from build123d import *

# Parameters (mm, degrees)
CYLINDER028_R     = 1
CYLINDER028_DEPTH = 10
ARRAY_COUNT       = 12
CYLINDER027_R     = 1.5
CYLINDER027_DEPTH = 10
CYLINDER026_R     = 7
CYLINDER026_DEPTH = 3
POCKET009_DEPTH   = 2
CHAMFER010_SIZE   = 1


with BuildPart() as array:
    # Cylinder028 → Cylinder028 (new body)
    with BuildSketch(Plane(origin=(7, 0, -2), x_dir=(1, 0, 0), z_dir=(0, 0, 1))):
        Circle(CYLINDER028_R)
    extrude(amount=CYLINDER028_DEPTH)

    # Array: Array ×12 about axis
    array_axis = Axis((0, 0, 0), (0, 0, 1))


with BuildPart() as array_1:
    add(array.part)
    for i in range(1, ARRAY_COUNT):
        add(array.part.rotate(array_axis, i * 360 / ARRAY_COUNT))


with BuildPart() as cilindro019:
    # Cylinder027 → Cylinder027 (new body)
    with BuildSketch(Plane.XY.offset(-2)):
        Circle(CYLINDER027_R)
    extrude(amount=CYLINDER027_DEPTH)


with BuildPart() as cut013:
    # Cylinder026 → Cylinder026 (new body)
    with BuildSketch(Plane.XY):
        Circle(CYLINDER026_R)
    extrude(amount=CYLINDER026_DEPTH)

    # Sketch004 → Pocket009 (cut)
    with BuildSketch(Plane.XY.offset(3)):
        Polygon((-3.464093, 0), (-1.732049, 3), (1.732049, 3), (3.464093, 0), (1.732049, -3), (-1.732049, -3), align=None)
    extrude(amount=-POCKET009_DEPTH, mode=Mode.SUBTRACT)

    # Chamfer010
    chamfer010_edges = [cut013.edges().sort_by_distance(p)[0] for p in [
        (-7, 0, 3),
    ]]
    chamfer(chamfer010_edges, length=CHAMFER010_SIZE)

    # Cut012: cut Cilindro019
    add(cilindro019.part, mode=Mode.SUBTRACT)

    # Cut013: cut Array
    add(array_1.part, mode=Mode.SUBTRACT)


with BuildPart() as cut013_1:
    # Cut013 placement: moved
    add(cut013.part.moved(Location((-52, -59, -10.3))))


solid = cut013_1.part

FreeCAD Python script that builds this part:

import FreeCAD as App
import Part
import Sketcher
Q = App.Units.Quantity


def edges_at(feature, points):
    """Names of the edges that pass closest to the given points."""
    edges = feature.Shape.Edges
    near = lambda p: min(range(len(edges)), key=lambda i: edges[i].distToShape(Part.Vertex(*p))[0])
    return sorted({f"Edge{near(p) + 1}" for p in points})


def add_polygon(sketch, points):
    """Adds a closed chain of lines whose ends are joined by coincident constraints."""
    first, n = sketch.GeometryCount, len(points)
    for a, b in zip(points, points[1:] + points[:1]):
        sketch.addGeometry(Part.LineSegment(App.Vector(*a, 0), App.Vector(*b, 0)), False)
    for i in range(n):
        sketch.addConstraint(Sketcher.Constraint("Coincident", first + i, 2, first + (i + 1) % n, 1))

doc = App.newDocument("Part")
body = doc.addObject("PartDesign::Body", "Body")

# Sketch on XY plane
sketch1 = body.newObject("Sketcher::SketchObject", "Sketch")
sketch1.AttachmentSupport = (doc.getObject("XY_Plane"), [""])
sketch1.MapMode = "FlatFace"
sketch1.AttachmentOffset = App.Placement(App.Vector(0, 0, -2), App.Rotation())
sketch1.addGeometry(Part.Circle(App.Vector(7, 0, 0), App.Vector(0, 0, 1), 1), False)
sketch1.addConstraint([
    Sketcher.Constraint("PointOnObject", 0, 3, -1),
    Sketcher.Constraint("Diameter", 0, Q("2 mm")),
    Sketcher.Constraint("DistanceX", -1, 1, 0, 3, Q("7 mm")),
])
pad1 = body.newObject("PartDesign::Pad", "Pad")
pad1.Profile = sketch1
pad1.Length = 10
body2 = doc.addObject("PartDesign::Body", "Body001")
body2.AllowCompound = True
doc.recompute()

body2.BaseFeature = body
doc.recompute()

body3 = doc.addObject("PartDesign::Body", "Body002")
body3.BaseFeature = body
body3.Placement = App.Placement(App.Vector(0, 0, 0), App.Rotation(App.Vector(0, 0, 1), 30))
boolean = body2.newObject("PartDesign::Boolean", "Boolean")
boolean.Type = "Fuse"
boolean.addObjects([body3])
doc.recompute()

body4 = doc.addObject("PartDesign::Body", "Body003")
body4.BaseFeature = body
body4.Placement = App.Placement(App.Vector(0, 0, 0), App.Rotation(App.Vector(0, 0, 1), 60))
boolean2 = body2.newObject("PartDesign::Boolean", "Boolean001")
boolean2.Type = "Fuse"
boolean2.addObjects([body4])
doc.recompute()

body5 = doc.addObject("PartDesign::Body", "Body004")
body5.BaseFeature = body
body5.Placement = App.Placement(App.Vector(0, 0, 0), App.Rotation(App.Vector(0, 0, 1), 90))
boolean3 = body2.newObject("PartDesign::Boolean", "Boolean002")
boolean3.Type = "Fuse"
boolean3.addObjects([body5])
doc.recompute()

body6 = doc.addObject("PartDesign::Body", "Body005")
body6.BaseFeature = body
body6.Placement = App.Placement(App.Vector(0, 0, 0), App.Rotation(App.Vector(0, 0, 1), 120))
boolean4 = body2.newObject("PartDesign::Boolean", "Boolean003")
boolean4.Type = "Fuse"
boolean4.addObjects([body6])
doc.recompute()

body7 = doc.addObject("PartDesign::Body", "Body006")
body7.BaseFeature = body
body7.Placement = App.Placement(App.Vector(0, 0, 0), App.Rotation(App.Vector(0, 0, 1), 150))
boolean5 = body2.newObject("PartDesign::Boolean", "Boolean004")
boolean5.Type = "Fuse"
boolean5.addObjects([body7])
doc.recompute()

body8 = doc.addObject("PartDesign::Body", "Body007")
body8.BaseFeature = body
body8.Placement = App.Placement(App.Vector(0, 0, 0), App.Rotation(App.Vector(0, 0, 1), 180))
boolean6 = body2.newObject("PartDesign::Boolean", "Boolean005")
boolean6.Type = "Fuse"
boolean6.addObjects([body8])
doc.recompute()

body9 = doc.addObject("PartDesign::Body", "Body008")
body9.BaseFeature = body
body9.Placement = App.Placement(App.Vector(0, 0, 0), App.Rotation(App.Vector(0, 0, 1), 210))
boolean7 = body2.newObject("PartDesign::Boolean", "Boolean006")
boolean7.Type = "Fuse"
boolean7.addObjects([body9])
doc.recompute()

body10 = doc.addObject("PartDesign::Body", "Body009")
body10.BaseFeature = body
body10.Placement = App.Placement(App.Vector(0, 0, 0), App.Rotation(App.Vector(0, 0, 1), 240))
boolean8 = body2.newObject("PartDesign::Boolean", "Boolean007")
boolean8.Type = "Fuse"
boolean8.addObjects([body10])
doc.recompute()

body11 = doc.addObject("PartDesign::Body", "Body010")
body11.BaseFeature = body
body11.Placement = App.Placement(App.Vector(0, 0, 0), App.Rotation(App.Vector(0, 0, 1), 270))
boolean9 = body2.newObject("PartDesign::Boolean", "Boolean008")
boolean9.Type = "Fuse"
boolean9.addObjects([body11])
doc.recompute()

body12 = doc.addObject("PartDesign::Body", "Body011")
body12.BaseFeature = body
body12.Placement = App.Placement(App.Vector(0, 0, 0), App.Rotation(App.Vector(0, 0, 1), 300))
boolean10 = body2.newObject("PartDesign::Boolean", "Boolean009")
boolean10.Type = "Fuse"
boolean10.addObjects([body12])
doc.recompute()

body.Placement = App.Placement(App.Vector(0, 0, 0), App.Rotation(App.Vector(0, 0, 1), 330))
boolean11 = body2.newObject("PartDesign::Boolean", "Boolean010")
boolean11.Type = "Fuse"
boolean11.addObjects([body])
body13 = doc.addObject("PartDesign::Body", "Body012")

# Sketch on XY plane
sketch2 = body13.newObject("Sketcher::SketchObject", "Sketch001")
sketch2.AttachmentSupport = (doc.getObject("XY_Plane012"), [""])
sketch2.MapMode = "FlatFace"
sketch2.AttachmentOffset = App.Placement(App.Vector(0, 0, -2), App.Rotation())
sketch2.addGeometry(Part.Circle(App.Vector(0, 0, 0), App.Vector(0, 0, 1), 1.5), False)
sketch2.addConstraint([
    Sketcher.Constraint("Coincident", 0, 3, -1, 1),
    Sketcher.Constraint("Diameter", 0, Q("3 mm")),
])
pad2 = body13.newObject("PartDesign::Pad", "Pad001")
pad2.Profile = sketch2
pad2.Length = 10
body14 = doc.addObject("PartDesign::Body", "Body013")

# Sketch on XY plane
sketch3 = body14.newObject("Sketcher::SketchObject", "Sketch002")
sketch3.AttachmentSupport = (doc.getObject("XY_Plane013"), [""])
sketch3.MapMode = "FlatFace"
sketch3.addGeometry(Part.Circle(App.Vector(0, 0, 0), App.Vector(0, 0, 1), 7), False)
sketch3.addConstraint([
    Sketcher.Constraint("Coincident", 0, 3, -1, 1),
    Sketcher.Constraint("Diameter", 0, Q("14 mm")),
])
pad3 = body14.newObject("PartDesign::Pad", "Pad002")
pad3.Profile = sketch3
pad3.Length = 3

# Sketch on XY plane
sketch4 = body14.newObject("Sketcher::SketchObject", "Sketch003")
sketch4.AttachmentSupport = (doc.getObject("XY_Plane013"), [""])
sketch4.MapMode = "FlatFace"
sketch4.AttachmentOffset = App.Placement(App.Vector(0, 0, 3), App.Rotation())
add_polygon(sketch4, [(-1.732049, 3), (-3.464093, 0), (-1.732049, -3), (1.732049, -3), (3.464093, 0), (1.732049, 3)])  # lines 0-5
sketch4.addConstraint([
    Sketcher.Constraint("Horizontal", 2),
    Sketcher.Constraint("Horizontal", 5),
    Sketcher.Constraint("Symmetric", 0, 2, 3, 2, -1, 1),
    Sketcher.Constraint("Symmetric", 1, 2, 4, 2, -1, 1),
    Sketcher.Constraint("PointOnObject", 0, 2, -1),
    Sketcher.Constraint("Parallel", 0, 3),
    Sketcher.Constraint("Vertical", 2, 2, 4, 2),
    Sketcher.Constraint("DistanceY", 1, 2, -1, 1, Q("3 mm")),
    Sketcher.Constraint("Distance", 0, Q("3.464098 mm")),
    Sketcher.Constraint("DistanceX", 2, 1, 2, 2, Q("3.464098 mm")),
])
pocket1 = body14.newObject("PartDesign::Pocket", "Pocket")
pocket1.Profile = sketch4
pocket1.Length = 2
doc.recompute()

chamfer = body14.newObject("PartDesign::Chamfer", "Chamfer")
chamfer.Base = (pocket1, edges_at(pocket1, [(-7, 0, 3)]))
chamfer.Size = 1
doc.recompute()

boolean12 = body14.newObject("PartDesign::Boolean", "Boolean011")
boolean12.Type = "Cut"
boolean12.addObjects([body13])
doc.recompute()

boolean13 = body14.newObject("PartDesign::Boolean", "Boolean012")
boolean13.Type = "Cut"
boolean13.addObjects([body2])
body15 = doc.addObject("PartDesign::Body", "Body014")
doc.recompute()

body14.Placement = App.Placement(App.Vector(-52, -59, -10.3), App.Rotation(App.Vector(0, 0, 1), 0))
boolean14 = body15.newObject("PartDesign::Boolean", "Boolean013")
boolean14.Type = "Fuse"
boolean14.addObjects([body14])

doc.recompute()
